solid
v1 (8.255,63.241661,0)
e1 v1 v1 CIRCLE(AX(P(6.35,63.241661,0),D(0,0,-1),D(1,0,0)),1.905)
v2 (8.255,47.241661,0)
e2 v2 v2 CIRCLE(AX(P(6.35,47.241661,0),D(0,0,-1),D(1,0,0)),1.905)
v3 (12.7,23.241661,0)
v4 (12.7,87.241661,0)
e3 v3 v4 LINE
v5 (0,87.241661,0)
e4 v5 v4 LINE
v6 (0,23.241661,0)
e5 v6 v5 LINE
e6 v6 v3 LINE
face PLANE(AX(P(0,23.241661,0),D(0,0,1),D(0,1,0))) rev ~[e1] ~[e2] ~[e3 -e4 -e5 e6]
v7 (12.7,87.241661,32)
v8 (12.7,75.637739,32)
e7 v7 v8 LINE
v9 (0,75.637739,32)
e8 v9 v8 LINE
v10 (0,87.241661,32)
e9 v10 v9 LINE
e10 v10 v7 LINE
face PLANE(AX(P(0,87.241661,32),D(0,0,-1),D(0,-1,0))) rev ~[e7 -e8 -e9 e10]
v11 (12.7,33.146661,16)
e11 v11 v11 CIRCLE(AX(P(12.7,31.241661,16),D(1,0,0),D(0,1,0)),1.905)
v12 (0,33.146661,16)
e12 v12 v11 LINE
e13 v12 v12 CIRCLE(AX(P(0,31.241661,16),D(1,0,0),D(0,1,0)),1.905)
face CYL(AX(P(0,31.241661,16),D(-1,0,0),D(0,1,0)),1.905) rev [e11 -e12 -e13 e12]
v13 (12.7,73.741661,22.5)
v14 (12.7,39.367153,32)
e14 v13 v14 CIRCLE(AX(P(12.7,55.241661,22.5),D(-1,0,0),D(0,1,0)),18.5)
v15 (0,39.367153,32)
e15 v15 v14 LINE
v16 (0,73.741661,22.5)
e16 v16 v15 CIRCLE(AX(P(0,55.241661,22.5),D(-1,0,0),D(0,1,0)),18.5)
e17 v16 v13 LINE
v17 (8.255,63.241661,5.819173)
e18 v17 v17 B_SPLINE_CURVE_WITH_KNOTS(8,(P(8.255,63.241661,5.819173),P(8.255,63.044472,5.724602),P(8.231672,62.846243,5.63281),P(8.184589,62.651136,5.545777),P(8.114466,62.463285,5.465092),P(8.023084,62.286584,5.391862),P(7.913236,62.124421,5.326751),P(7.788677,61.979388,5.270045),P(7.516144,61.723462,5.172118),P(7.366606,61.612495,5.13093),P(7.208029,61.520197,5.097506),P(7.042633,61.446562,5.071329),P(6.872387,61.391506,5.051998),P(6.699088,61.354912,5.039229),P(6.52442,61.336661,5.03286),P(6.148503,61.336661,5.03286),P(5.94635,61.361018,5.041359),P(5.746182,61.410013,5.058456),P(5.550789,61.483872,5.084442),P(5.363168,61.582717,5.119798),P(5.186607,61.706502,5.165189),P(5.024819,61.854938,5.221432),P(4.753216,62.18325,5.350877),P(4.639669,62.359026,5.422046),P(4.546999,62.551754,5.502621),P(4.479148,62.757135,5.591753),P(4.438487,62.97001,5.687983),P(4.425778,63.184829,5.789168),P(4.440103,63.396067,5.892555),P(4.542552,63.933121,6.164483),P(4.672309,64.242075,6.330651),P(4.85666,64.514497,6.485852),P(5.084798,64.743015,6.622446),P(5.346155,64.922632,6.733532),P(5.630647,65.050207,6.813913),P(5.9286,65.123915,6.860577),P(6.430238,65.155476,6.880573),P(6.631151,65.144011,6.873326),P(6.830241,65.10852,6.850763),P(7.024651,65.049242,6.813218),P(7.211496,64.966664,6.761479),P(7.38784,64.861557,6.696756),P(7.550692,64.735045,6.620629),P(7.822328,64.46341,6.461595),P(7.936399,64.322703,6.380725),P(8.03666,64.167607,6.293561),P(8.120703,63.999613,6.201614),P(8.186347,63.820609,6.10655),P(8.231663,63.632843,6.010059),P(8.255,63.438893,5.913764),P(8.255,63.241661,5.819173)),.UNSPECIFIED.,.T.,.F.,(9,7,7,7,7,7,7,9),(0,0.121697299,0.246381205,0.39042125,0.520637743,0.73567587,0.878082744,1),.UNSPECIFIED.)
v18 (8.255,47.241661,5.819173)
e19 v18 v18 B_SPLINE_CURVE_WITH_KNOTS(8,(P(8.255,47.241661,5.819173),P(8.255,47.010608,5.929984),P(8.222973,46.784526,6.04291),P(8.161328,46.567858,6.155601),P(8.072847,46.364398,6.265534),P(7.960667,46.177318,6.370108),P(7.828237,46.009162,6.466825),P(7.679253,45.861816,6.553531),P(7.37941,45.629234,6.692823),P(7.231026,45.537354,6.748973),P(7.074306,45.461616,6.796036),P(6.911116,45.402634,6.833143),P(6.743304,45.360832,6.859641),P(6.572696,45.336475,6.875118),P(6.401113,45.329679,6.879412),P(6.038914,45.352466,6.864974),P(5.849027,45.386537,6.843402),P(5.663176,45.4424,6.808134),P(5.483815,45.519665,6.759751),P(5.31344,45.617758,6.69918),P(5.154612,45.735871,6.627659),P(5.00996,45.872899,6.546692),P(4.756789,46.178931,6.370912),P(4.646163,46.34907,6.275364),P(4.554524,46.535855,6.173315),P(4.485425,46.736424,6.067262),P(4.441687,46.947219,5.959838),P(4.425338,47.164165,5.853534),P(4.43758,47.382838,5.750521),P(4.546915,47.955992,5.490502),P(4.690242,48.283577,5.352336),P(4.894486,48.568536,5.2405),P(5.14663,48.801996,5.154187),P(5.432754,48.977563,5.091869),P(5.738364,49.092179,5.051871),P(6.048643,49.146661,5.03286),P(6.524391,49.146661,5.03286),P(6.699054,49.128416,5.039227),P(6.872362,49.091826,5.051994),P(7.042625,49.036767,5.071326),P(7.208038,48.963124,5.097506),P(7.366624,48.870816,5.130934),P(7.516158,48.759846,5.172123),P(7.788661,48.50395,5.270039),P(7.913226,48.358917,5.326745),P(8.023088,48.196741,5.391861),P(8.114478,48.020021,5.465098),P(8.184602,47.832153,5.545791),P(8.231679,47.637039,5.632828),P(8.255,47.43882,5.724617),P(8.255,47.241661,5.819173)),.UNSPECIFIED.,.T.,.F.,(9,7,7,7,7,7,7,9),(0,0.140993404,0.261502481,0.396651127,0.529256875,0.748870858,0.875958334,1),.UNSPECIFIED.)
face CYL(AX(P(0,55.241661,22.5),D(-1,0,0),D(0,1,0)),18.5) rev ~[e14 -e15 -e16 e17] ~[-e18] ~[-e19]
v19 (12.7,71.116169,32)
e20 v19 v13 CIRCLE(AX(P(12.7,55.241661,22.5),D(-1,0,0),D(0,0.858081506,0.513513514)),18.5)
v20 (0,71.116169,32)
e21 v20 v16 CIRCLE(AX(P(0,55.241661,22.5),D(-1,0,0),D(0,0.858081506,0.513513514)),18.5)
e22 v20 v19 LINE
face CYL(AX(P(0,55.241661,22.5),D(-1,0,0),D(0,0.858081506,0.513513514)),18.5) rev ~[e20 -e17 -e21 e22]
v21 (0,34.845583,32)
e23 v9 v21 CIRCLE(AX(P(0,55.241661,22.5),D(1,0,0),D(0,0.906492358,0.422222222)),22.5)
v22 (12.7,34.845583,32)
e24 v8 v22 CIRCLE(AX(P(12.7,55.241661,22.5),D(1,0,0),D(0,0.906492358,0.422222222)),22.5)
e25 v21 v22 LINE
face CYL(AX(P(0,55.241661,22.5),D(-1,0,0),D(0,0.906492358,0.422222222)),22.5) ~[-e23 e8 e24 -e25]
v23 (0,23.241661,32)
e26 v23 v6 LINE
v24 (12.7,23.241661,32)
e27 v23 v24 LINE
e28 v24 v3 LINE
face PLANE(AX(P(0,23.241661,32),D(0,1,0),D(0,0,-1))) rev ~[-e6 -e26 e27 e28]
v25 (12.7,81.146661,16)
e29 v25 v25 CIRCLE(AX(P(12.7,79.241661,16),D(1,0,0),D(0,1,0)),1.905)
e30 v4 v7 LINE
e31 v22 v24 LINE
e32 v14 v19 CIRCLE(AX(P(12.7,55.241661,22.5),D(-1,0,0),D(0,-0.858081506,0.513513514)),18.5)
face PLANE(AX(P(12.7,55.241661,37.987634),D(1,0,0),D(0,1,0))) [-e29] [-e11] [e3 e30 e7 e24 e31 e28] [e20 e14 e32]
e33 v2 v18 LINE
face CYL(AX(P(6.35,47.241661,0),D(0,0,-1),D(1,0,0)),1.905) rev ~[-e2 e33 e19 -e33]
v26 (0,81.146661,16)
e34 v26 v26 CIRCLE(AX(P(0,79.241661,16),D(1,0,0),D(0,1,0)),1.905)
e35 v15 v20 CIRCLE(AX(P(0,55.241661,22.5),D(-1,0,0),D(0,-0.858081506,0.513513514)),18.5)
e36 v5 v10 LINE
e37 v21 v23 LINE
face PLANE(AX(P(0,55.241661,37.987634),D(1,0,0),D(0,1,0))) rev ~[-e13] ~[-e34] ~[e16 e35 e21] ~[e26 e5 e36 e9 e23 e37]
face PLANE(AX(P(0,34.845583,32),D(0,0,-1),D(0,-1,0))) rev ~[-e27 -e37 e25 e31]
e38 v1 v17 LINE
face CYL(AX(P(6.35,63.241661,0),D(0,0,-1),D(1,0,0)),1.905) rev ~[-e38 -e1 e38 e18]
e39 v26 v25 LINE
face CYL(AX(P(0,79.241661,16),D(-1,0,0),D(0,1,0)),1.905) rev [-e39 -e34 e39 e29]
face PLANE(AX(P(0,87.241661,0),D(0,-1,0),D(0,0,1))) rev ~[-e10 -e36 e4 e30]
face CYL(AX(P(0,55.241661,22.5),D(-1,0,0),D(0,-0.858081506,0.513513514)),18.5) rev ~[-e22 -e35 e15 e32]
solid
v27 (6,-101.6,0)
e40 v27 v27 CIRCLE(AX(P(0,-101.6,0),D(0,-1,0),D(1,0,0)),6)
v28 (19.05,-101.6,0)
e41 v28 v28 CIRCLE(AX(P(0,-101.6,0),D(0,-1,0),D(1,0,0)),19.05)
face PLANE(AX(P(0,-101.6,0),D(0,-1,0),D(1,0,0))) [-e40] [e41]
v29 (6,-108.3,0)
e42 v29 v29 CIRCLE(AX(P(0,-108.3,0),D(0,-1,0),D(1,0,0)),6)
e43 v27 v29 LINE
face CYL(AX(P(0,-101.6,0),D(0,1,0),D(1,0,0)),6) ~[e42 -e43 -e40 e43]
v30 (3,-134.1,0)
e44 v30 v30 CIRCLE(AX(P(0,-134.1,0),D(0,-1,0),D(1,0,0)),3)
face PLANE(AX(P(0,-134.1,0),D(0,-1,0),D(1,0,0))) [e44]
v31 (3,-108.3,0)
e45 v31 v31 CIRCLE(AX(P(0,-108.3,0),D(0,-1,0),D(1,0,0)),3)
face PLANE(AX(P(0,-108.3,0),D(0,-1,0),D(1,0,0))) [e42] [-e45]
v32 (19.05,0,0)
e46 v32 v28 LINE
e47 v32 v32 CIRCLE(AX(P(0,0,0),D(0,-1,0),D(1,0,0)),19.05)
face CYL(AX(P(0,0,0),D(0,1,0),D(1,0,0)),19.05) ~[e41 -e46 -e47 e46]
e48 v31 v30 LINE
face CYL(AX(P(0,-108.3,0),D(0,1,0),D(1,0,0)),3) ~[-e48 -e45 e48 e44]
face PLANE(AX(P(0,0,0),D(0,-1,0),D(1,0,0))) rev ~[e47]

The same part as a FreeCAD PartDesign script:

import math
import FreeCAD as App
import Part
import Sketcher

V = App.Vector
Q = App.Units.Quantity

doc = App.newDocument("Part")
body = doc.addObject("PartDesign::Body", "Body")

sketch1 = body.newObject("Sketcher::SketchObject", "Sketch")
sketch1.AttachmentSupport = (doc.getObject("XZ_Plane"), [""])
sketch1.MapMode = "FlatFace"
sketch1.addGeometry(Part.Circle(V(0, 0, 0), V(0, 0, 1), 19), False)
sketch1.addConstraint([
    Sketcher.Constraint("Coincident", 0, 3, -1, 1),
    Sketcher.Constraint("Diameter", 0, Q("38.1 mm")),
])
pad1 = body.newObject("PartDesign::Pad", "Pad")
pad1.Profile = sketch1
pad1.Length = 101.6

sketch2 = body.newObject("Sketcher::SketchObject", "Sketch001")
sketch2.AttachmentSupport = (doc.getObject("XZ_Plane"), [""])
sketch2.MapMode = "FlatFace"
sketch2.AttachmentOffset = App.Placement(V(0, 0, 101.6), App.Rotation())
sketch2.addGeometry(Part.Circle(V(0, 0, 0), V(0, 0, 1), 6), False)
sketch2.addConstraint([
    Sketcher.Constraint("Coincident", 0, 3, -1, 1),
    Sketcher.Constraint("Diameter", 0, Q("12 mm")),
])
pad2 = body.newObject("PartDesign::Pad", "Pad001")
pad2.Profile = sketch2
pad2.Length = 6.7

sketch3 = body.newObject("Sketcher::SketchObject", "Sketch002")
sketch3.AttachmentSupport = (doc.getObject("XZ_Plane"), [""])
sketch3.MapMode = "FlatFace"
sketch3.AttachmentOffset = App.Placement(V(0, 0, 108.3), App.Rotation())
sketch3.addGeometry(Part.Circle(V(0, 0, 0), V(0, 0, 1), 3), False)
sketch3.addConstraint([
    Sketcher.Constraint("Coincident", 0, 3, -1, 1),
    Sketcher.Constraint("Diameter", 0, Q("6 mm")),
])
pad3 = body.newObject("PartDesign::Pad", "Pad002")
pad3.Profile = sketch3
pad3.Length = 25.8
body2 = doc.addObject("PartDesign::Body", "Body001")

sketch4 = body2.newObject("Sketcher::SketchObject", "Sketch003")
sketch4.AttachmentSupport = (doc.getObject("YZ_Plane001"), [""])
sketch4.MapMode = "FlatFace"
sketch4.addGeometry([
    Part.ArcOfCircle(Part.Circle(V(55.2, 22.5, 0), V(0, 0, 1), 22.5), math.radians(25), math.radians(155)),
    Part.LineSegment(V(34.8, 32, 0), V(23.2, 32, 0)),
    Part.LineSegment(V(23.2, 32, 0), V(23.2, 0, 0)),
    Part.LineSegment(V(23.2, 0, 0), V(87.2, 0, 0)),
    Part.LineSegment(V(87.2, 0, 0), V(87.2, 32, 0)),
    Part.LineSegment(V(87.2, 32, 0), V(75.6, 32, 0)),
    Part.Circle(V(31.2, 16, 0), V(0, 0, 1), 1.9),
    Part.Circle(V(79.2, 16, 0), V(0, 0, 1), 1.9),
    Part.ArcOfCircle(Part.Circle(V(55.2, 22.5, 0), V(0, 0, 1), 18.5), math.radians(31), math.radians(149)),
    Part.ArcOfCircle(Part.Circle(V(55.2, 22.5, 0), V(0, 0, 1), 18.5), math.radians(0), math.radians(31)),
    Part.ArcOfCircle(Part.Circle(V(55.2, 22.5, 0), V(0, 0, 1), 18.5), math.radians(149), math.radians(360)),
], False)
sketch4.addConstraint([
    Sketcher.Constraint("Coincident", 0, 2, 1, 1),
    Sketcher.Constraint("Coincident", 1, 2, 2, 1),
    Sketcher.Constraint("Coincident", 2, 2, 3, 1),
    Sketcher.Constraint("Coincident", 3, 2, 4, 1),
    Sketcher.Constraint("Coincident", 4, 2, 5, 1),
    Sketcher.Constraint("Coincident", 5, 2, 0, 1),
    Sketcher.Constraint("Tangent", 8, 1, 9, 2),
    Sketcher.Constraint("Tangent", 9, 1, 10, 2),
    Sketcher.Constraint("Tangent", 10, 1, 8, 2),
    Sketcher.Constraint("Horizontal", 1),
    Sketcher.Constraint("Vertical", 2),
    Sketcher.Constraint("Horizontal", 3),
    Sketcher.Constraint("Vertical", 4),
    Sketcher.Constraint("Horizontal", 5),
    Sketcher.Constraint("Coincident", 8, 3, 0, 3),
    Sketcher.Constraint("Equal", 6, 7),
    Sketcher.Constraint("PointOnObject", 2, 2, -1),
    Sketcher.Constraint("Horizontal", 6, 3, 7, 3),
    Sketcher.Constraint("Horizontal", 1, 2, 4, 2),
    Sketcher.Constraint("Horizontal", 5, 2, 8, 1),
    Sketcher.Constraint("Horizontal", 10, 3, 9, 1),
    Sketcher.Constraint("Horizontal", 8, 1, 10, 1),
    Sketcher.Constraint("Equal", 1, 5),
    Sketcher.Constraint("Radius", 0, Q("22.5 mm")),
    Sketcher.Constraint("Radius", 8, Q("18.5 mm")),
    Sketcher.Constraint("Diameter", 6, Q("3.81 mm")),
    Sketcher.Constraint("DistanceX", 3, 1, 3, 2, Q("64 mm")),
    Sketcher.Constraint("DistanceY", 2, 2, 2, 1, Q("32 mm")),
    Sketcher.Constraint("DistanceY", -1, 1, 6, 3, Q("16 mm")),
    Sketcher.Constraint("DistanceX", 6, 3, 0, 3, Q("24 mm")),
    Sketcher.Constraint("DistanceX", 0, 3, 7, 3, Q("24 mm")),
    Sketcher.Constraint("DistanceY", -1, 1, 0, 3, Q("22.5 mm")),
    Sketcher.Constraint("DistanceX", -1, 1, 0, 3, Q("55.241661 mm")),
])
pad4 = body2.newObject("PartDesign::Pad", "Pad003")
pad4.Profile = sketch4
pad4.Length = 12.7

sketch5 = body2.newObject("Sketcher::SketchObject", "Sketch004")
sketch5.AttachmentSupport = (doc.getObject("XY_Plane001"), [""])
sketch5.MapMode = "FlatFace"
sketch5.addGeometry([
    Part.Circle(V(6.3, 47.2, 0), V(0, 0, 1), 1.9),
    Part.Circle(V(6.3, 63.2, 0), V(0, 0, 1), 1.9),
], False)
sketch5.addConstraint([
    Sketcher.Constraint("Equal", 0, 1),
    Sketcher.Constraint("Vertical", 0, 3, 1, 3),
    Sketcher.Constraint("Diameter", 0, Q("3.81 mm")),
    Sketcher.Constraint("DistanceY", 0, 3, 1, 3, Q("16 mm")),
    Sketcher.Constraint("DistanceX", -1, 1, 0, 3, Q("6.35 mm")),
    Sketcher.Constraint("DistanceY", -1, 1, 0, 3, Q("47.241661 mm")),
])
pocket1 = body2.newObject("PartDesign::Pocket", "Pocket")
pocket1.Profile = sketch5
pocket1.Length = 6.875989
pocket1.Reversed = True

doc.recompute()
